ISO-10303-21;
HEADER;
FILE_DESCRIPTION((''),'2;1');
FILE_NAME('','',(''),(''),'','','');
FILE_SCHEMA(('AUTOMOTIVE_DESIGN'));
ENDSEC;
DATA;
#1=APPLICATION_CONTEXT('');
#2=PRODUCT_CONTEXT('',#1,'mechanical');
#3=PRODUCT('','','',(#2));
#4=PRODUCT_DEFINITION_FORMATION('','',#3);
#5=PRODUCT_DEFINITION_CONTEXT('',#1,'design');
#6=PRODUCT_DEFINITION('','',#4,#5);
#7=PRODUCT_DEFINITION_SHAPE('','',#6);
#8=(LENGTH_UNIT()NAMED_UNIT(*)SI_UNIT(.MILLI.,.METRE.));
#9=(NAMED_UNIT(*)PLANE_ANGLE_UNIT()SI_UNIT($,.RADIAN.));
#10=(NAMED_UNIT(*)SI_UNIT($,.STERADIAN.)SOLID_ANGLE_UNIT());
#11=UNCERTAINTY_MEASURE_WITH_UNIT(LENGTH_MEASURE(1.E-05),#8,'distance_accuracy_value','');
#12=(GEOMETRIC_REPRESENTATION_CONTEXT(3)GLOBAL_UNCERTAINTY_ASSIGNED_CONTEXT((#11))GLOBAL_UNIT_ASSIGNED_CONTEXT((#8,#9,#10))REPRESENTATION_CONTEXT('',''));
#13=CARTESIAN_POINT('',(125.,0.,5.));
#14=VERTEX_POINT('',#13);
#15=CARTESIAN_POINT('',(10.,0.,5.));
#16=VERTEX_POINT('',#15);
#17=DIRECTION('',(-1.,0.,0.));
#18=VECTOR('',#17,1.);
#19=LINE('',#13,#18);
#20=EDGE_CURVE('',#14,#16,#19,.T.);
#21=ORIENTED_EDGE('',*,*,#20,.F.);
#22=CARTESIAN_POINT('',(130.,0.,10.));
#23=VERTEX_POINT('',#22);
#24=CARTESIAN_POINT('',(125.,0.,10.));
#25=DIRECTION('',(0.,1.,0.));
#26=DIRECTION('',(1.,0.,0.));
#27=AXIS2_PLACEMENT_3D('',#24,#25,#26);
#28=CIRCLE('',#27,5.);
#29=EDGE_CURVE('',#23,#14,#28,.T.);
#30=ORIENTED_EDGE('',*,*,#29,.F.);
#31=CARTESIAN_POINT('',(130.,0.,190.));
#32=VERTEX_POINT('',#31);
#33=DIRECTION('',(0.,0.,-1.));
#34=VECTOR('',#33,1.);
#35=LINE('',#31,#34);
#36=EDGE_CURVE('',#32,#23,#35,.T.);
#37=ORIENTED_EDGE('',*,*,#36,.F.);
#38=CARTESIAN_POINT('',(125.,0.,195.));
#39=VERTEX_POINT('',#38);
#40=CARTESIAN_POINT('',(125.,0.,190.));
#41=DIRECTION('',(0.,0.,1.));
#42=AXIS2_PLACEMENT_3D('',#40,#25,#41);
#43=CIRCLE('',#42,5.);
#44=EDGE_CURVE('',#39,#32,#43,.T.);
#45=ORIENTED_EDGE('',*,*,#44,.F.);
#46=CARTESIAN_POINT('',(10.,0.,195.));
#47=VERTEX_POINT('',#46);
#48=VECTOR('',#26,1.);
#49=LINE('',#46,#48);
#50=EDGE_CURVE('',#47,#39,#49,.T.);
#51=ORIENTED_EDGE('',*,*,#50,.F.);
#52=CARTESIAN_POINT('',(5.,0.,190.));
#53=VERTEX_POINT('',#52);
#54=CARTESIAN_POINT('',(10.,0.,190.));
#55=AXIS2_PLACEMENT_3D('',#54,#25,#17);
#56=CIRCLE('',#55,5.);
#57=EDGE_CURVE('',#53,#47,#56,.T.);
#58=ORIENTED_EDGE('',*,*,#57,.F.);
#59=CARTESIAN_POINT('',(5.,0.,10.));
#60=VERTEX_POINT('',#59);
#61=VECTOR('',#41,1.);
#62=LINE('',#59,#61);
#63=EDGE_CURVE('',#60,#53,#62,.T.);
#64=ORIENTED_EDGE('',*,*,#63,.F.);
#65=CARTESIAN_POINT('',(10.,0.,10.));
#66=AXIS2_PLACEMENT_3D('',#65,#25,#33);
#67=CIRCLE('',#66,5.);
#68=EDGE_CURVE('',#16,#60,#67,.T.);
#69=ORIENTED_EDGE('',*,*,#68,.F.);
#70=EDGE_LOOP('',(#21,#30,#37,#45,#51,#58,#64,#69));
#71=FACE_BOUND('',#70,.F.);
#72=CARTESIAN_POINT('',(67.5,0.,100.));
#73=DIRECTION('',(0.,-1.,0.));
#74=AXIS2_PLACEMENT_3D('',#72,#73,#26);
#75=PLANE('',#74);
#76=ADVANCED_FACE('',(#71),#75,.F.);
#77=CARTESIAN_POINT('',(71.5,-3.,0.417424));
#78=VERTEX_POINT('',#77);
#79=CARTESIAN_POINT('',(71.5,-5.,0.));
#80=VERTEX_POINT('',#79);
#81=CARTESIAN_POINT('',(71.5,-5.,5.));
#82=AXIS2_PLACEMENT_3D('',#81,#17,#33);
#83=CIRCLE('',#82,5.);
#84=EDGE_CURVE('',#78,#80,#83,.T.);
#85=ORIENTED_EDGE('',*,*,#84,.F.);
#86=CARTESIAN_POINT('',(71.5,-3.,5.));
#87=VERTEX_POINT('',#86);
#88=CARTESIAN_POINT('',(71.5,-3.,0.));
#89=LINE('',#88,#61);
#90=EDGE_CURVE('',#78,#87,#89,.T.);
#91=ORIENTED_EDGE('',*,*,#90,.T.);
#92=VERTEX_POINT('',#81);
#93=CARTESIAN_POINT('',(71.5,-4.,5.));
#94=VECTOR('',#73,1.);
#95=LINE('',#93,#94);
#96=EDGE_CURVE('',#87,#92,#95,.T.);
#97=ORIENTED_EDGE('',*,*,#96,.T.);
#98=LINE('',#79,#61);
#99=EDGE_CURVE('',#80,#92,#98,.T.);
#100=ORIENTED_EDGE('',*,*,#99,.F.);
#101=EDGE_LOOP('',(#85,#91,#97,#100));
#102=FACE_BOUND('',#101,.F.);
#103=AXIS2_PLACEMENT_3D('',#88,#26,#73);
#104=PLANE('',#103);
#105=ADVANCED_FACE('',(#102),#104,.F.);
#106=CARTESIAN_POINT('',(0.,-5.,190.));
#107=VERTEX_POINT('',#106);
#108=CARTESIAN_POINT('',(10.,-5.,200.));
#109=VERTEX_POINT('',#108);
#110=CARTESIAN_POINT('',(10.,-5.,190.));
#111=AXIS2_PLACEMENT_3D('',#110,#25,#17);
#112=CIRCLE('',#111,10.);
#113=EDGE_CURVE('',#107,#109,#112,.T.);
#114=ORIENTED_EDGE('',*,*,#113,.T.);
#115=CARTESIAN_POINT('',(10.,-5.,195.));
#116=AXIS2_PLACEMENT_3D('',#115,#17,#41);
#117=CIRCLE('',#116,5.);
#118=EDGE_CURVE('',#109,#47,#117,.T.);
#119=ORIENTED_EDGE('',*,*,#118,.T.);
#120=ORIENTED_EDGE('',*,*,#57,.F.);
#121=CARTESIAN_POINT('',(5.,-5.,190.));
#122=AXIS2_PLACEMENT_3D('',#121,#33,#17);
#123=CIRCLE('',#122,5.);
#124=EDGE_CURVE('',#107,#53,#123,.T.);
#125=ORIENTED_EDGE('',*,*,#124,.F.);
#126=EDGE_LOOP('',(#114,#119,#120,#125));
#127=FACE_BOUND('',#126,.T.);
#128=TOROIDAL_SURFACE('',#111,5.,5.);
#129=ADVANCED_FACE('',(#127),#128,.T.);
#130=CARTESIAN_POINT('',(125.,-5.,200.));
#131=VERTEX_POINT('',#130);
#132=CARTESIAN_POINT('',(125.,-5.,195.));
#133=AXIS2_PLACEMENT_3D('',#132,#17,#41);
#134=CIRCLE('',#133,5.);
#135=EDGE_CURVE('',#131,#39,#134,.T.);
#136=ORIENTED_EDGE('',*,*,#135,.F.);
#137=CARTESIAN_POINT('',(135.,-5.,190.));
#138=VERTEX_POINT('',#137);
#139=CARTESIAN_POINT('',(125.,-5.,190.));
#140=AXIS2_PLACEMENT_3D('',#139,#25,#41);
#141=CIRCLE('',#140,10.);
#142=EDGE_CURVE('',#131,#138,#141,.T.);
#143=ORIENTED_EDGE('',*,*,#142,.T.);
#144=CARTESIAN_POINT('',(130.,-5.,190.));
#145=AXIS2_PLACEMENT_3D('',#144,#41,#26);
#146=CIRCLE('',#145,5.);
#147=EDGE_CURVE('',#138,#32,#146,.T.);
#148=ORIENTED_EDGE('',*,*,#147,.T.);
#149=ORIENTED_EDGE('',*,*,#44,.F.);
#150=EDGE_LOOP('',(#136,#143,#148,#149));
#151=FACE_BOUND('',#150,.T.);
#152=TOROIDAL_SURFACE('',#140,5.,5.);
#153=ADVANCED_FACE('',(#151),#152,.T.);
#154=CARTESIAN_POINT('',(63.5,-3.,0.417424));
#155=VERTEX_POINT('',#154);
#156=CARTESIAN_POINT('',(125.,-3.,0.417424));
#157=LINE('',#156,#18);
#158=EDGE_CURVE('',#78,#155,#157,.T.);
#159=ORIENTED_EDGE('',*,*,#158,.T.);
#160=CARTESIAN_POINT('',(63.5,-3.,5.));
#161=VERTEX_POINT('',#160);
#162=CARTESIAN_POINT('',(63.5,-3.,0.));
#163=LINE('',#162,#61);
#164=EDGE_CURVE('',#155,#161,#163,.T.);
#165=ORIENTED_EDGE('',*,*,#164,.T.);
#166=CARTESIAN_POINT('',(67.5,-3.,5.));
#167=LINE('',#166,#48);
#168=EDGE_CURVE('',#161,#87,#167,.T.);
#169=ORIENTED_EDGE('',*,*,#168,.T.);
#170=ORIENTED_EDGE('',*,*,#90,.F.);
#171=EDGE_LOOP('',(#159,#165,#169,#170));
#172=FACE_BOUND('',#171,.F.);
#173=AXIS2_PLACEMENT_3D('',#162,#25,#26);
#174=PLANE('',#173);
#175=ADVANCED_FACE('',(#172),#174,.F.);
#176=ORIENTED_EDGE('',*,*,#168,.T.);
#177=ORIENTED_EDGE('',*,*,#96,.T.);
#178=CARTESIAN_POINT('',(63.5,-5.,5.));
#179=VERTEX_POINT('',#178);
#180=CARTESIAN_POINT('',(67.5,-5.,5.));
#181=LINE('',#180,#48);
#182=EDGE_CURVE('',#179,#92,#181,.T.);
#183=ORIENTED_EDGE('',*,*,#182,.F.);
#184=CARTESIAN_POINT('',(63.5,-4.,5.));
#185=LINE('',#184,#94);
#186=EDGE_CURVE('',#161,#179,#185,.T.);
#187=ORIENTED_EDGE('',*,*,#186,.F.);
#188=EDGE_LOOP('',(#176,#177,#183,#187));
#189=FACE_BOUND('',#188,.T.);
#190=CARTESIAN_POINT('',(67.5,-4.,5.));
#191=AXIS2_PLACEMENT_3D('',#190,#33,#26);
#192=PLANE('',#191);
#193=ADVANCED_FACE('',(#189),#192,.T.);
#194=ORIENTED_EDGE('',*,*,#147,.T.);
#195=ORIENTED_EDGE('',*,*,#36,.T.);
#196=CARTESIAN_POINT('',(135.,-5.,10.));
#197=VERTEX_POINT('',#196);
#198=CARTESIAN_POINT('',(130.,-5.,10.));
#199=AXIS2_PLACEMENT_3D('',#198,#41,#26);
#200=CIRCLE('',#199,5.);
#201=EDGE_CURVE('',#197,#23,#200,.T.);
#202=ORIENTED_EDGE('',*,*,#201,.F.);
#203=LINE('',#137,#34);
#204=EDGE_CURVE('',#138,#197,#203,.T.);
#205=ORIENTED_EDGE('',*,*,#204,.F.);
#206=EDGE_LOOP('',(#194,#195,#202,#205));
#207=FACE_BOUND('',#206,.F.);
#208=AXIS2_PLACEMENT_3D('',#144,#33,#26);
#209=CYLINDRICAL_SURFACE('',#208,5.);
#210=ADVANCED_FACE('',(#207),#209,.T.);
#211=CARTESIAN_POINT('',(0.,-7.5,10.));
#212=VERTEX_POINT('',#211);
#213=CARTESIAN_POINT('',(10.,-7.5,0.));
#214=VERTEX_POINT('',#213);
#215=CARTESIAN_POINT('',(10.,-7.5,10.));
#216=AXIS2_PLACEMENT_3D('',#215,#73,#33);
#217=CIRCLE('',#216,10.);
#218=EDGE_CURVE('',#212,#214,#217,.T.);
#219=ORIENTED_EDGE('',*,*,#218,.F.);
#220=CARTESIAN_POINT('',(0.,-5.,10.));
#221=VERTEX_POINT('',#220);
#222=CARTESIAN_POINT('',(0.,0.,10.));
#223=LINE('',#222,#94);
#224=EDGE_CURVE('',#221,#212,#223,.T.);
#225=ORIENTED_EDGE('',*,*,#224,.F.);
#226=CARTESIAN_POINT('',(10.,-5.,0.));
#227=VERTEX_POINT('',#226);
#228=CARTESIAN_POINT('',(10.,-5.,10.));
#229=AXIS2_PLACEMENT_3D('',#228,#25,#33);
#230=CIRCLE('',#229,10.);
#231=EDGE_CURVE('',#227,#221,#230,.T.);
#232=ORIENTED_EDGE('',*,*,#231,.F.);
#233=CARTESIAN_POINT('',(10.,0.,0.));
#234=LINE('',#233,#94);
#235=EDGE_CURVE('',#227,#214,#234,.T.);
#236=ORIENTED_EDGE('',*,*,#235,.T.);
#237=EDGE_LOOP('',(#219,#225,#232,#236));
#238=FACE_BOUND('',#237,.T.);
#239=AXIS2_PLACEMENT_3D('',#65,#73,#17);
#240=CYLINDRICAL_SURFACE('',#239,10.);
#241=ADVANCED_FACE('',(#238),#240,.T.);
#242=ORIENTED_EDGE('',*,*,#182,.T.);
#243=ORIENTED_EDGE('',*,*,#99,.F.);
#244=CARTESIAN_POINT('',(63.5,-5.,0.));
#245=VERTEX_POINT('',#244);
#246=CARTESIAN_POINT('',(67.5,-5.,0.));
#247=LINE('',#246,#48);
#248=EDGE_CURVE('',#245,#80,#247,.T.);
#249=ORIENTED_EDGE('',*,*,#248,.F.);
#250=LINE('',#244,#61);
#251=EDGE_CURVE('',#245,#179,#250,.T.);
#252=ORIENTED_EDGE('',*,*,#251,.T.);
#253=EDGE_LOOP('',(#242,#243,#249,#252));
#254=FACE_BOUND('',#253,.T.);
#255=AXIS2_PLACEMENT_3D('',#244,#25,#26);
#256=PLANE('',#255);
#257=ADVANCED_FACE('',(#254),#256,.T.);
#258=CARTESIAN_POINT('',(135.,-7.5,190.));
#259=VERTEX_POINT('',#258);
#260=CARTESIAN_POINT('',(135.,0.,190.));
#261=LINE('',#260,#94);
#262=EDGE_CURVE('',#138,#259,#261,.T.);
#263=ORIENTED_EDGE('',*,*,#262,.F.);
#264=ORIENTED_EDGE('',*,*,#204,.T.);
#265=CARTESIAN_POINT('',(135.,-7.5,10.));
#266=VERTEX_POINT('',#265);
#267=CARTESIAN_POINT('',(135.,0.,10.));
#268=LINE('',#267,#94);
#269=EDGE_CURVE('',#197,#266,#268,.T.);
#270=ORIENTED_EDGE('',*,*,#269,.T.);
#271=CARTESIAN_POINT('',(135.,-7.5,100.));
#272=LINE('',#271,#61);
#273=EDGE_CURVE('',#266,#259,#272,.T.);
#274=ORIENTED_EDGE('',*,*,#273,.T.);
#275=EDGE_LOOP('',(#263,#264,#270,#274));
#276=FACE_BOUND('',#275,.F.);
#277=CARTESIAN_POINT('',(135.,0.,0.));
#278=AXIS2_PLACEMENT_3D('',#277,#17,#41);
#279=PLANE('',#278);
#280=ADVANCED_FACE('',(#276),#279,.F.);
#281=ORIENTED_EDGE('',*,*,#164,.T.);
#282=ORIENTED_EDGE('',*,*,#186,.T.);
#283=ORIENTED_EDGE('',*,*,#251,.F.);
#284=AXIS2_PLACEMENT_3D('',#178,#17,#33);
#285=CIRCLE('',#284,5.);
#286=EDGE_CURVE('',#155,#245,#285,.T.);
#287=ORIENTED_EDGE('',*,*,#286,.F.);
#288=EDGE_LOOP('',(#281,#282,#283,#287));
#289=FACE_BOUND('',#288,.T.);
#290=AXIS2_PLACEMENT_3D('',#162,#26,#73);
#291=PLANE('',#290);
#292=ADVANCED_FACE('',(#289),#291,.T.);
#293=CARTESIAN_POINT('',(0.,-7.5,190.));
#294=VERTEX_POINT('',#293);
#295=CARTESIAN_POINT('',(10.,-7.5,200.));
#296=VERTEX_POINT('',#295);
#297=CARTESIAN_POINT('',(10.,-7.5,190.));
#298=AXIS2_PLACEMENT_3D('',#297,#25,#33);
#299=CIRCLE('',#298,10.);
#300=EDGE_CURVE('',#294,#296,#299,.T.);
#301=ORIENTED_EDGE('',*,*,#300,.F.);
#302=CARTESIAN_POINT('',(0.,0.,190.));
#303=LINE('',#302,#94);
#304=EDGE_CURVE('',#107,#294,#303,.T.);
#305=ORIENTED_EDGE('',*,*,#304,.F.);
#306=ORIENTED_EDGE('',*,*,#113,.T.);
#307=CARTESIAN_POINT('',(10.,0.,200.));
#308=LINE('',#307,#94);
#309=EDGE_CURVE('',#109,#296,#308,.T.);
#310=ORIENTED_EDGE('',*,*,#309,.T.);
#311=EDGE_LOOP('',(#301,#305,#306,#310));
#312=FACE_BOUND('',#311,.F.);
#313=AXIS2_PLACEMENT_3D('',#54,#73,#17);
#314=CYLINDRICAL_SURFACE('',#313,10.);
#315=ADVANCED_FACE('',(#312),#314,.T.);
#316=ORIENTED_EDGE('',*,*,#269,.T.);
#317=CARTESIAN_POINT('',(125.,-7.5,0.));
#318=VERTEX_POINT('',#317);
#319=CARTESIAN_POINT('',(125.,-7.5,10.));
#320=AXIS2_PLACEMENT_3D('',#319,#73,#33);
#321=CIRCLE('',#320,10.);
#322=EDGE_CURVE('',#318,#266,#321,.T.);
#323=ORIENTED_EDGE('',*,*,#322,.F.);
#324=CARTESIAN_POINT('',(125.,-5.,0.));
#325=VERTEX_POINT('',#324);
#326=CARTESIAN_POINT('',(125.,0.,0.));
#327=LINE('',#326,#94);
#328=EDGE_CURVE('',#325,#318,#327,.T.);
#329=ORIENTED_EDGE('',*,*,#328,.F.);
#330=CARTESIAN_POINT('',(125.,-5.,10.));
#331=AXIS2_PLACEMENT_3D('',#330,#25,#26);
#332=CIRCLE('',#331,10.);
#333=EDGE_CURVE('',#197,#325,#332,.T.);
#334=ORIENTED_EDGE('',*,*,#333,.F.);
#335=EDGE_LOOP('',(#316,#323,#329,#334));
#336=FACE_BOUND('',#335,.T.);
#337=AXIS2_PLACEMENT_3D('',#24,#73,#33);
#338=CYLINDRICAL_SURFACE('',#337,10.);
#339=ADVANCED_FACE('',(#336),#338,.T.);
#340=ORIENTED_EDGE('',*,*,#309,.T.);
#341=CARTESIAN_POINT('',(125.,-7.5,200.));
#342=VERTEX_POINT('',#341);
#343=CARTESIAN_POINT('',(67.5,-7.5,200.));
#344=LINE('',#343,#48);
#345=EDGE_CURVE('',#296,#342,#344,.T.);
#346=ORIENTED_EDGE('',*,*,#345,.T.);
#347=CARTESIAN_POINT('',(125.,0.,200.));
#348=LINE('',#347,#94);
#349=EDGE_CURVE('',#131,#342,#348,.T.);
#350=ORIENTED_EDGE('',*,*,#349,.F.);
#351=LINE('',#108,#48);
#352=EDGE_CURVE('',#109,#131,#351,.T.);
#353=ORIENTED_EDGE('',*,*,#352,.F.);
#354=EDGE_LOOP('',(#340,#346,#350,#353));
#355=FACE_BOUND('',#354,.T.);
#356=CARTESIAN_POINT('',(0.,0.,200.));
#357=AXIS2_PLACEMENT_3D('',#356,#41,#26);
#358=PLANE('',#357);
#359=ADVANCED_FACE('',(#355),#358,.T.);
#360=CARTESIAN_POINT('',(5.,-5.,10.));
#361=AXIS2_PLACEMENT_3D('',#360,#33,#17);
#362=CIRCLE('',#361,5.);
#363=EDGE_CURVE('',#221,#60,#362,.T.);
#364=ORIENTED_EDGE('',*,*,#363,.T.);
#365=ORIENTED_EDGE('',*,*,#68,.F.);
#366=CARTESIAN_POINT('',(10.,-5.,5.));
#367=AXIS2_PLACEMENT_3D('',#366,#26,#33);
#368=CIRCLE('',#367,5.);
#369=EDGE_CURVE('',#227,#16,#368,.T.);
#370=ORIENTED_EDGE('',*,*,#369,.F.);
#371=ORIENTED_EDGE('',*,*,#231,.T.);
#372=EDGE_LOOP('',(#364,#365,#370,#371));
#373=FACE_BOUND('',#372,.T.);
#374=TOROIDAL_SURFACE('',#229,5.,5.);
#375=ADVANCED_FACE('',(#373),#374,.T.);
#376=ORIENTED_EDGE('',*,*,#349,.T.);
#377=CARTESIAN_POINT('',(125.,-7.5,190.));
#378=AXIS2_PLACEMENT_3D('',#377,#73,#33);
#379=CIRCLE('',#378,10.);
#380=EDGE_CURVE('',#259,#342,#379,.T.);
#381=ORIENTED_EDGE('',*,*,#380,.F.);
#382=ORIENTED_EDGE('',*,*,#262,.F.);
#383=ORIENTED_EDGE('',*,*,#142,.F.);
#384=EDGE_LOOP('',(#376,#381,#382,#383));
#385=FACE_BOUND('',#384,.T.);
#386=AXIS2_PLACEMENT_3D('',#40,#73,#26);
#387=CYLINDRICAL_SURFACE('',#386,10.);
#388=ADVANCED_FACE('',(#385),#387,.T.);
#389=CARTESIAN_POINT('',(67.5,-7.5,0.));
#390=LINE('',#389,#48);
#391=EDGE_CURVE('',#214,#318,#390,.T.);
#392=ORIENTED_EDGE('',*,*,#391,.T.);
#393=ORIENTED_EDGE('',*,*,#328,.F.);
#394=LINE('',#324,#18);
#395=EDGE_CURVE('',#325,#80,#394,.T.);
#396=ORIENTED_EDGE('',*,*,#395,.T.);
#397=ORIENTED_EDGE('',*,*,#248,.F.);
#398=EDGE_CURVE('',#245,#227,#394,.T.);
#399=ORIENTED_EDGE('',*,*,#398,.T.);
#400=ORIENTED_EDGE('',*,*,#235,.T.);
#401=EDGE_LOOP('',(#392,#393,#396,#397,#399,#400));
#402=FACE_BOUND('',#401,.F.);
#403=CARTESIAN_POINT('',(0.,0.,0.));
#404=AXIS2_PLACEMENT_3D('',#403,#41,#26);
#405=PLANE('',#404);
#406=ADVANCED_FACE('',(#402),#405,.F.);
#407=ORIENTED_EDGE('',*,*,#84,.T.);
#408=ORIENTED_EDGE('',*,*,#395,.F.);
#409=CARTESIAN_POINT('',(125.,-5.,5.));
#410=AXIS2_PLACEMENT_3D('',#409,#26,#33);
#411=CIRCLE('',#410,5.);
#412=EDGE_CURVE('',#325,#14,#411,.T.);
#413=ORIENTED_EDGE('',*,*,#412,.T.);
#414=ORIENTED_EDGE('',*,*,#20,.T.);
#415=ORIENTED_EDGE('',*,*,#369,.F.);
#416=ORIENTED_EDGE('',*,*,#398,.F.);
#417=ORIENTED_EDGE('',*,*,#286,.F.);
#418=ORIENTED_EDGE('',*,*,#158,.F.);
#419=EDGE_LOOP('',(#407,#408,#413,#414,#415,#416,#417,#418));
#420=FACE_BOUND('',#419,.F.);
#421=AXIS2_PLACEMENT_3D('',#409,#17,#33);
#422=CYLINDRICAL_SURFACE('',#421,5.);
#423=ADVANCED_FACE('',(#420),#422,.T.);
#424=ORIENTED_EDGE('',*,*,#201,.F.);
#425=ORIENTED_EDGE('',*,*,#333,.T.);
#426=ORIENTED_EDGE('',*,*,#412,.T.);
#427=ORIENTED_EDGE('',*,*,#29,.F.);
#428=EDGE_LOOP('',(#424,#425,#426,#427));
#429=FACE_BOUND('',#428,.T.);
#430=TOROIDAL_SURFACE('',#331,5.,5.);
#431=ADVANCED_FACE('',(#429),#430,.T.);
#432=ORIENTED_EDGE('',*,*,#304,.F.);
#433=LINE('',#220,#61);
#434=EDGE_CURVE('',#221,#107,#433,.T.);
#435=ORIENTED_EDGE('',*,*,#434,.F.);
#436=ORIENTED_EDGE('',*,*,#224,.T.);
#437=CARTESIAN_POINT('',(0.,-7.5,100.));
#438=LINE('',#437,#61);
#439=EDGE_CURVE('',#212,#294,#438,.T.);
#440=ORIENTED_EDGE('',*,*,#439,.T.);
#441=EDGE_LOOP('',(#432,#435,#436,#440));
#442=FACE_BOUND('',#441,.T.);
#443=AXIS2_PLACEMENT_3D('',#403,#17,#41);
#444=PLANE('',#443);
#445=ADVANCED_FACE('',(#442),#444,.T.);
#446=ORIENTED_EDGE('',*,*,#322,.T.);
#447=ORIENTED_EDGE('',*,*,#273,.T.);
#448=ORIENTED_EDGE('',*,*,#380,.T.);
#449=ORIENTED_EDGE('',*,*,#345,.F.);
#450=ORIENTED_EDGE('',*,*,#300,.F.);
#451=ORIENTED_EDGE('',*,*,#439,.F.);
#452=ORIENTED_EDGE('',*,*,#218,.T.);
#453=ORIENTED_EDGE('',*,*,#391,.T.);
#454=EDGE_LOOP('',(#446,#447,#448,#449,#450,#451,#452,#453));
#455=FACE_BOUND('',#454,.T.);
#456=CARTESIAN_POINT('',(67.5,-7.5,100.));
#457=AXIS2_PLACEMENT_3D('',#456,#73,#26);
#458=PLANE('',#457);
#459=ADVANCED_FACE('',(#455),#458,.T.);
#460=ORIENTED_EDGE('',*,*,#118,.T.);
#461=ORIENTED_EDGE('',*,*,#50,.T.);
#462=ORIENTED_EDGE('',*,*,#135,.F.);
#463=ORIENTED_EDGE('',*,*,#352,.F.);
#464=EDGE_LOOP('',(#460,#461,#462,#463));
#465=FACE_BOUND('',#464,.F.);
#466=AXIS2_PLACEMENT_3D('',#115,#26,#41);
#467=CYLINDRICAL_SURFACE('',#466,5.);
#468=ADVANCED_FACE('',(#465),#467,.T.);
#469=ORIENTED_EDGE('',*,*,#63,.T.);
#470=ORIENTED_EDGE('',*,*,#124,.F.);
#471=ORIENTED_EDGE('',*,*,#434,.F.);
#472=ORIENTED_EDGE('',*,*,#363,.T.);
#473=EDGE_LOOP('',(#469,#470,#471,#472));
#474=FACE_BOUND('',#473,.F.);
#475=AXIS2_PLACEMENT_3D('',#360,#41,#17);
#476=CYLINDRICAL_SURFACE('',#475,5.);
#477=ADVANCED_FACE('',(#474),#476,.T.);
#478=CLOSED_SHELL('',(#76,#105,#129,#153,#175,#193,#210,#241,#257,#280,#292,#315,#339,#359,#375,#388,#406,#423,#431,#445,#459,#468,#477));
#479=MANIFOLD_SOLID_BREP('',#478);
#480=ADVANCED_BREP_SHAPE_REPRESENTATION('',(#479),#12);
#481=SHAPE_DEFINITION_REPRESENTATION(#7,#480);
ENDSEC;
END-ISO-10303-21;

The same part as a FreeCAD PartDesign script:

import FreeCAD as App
import Part
import Sketcher
from FreeCAD import Vector


def edges_at(feature, points):
    """Names of the edges that pass closest to the given points."""
    edges = feature.Shape.Edges
    near = lambda p: min(range(len(edges)), key=lambda i: edges[i].distToShape(Part.Vertex(*p))[0])
    return sorted({f"Edge{near(p) + 1}" for p in points})


def add_polygon(sketch, points):
    """Adds a closed chain of lines whose ends are joined by coincident constraints."""
    first, n = sketch.GeometryCount, len(points)
    for a, b in zip(points, points[1:] + points[:1]):
        sketch.addGeometry(Part.LineSegment(App.Vector(*a, 0), App.Vector(*b, 0)), False)
    for i in range(n):
        sketch.addConstraint(Sketcher.Constraint("Coincident", first + i, 2, first + (i + 1) % n, 1))

doc = App.newDocument("Part")
body = doc.addObject("PartDesign::Body", "Body")

# Sketch on XZ plane
sketch1 = doc.addObject("Sketcher::SketchObject", "Sketch")
body.addObject(sketch1)
sketch1.AttachmentSupport = (doc.XZ_Plane, [""])
sketch1.MapMode = "FlatFace"
add_polygon(sketch1, [(0, 200), (0, 0), (135, 0), (135, 200)])  # lines 0-3
sketch1.addConstraint([
    Sketcher.Constraint("Vertical", 0),
    Sketcher.Constraint("Horizontal", 1),
    Sketcher.Constraint("Vertical", 2),
    Sketcher.Constraint("Horizontal", 3),
    Sketcher.Constraint("Coincident", 0, 2, -1, 1),
    Sketcher.Constraint("DistanceX", 1, 1, 1, 2, 135.0),
    Sketcher.Constraint("DistanceY", 0, 2, 0, 1, 200.0),
])
pad1 = doc.addObject("PartDesign::Pad", "Pad")
body.addObject(pad1)
pad1.Profile = sketch1
pad1.Length = 7.5
doc.recompute()

fillet = doc.addObject("PartDesign::Fillet", "Fillet")
body.addObject(fillet)
fillet.Base = (pad1, edges_at(pad1, [
    (0, -3.75, 200),
    (135, -3.75, 200),
    (0, -3.75, 0),
    (135, -3.75, 0),
]))
fillet.Radius = 10
doc.recompute()

fillet2 = doc.addObject("PartDesign::Fillet", "Fillet001")
body.addObject(fillet2)
fillet2.Base = (fillet, edges_at(fillet, [(0, 0, 100), (67.5, 0, 200), (2.929, 0, 197.071)]))
fillet2.Radius = 5

# Sketch on XY plane
sketch2 = doc.addObject("Sketcher::SketchObject", "Sketch001")
body.addObject(sketch2)
sketch2.AttachmentSupport = (doc.XY_Plane, [""])
sketch2.MapMode = "FlatFace"
add_polygon(sketch2, [(63.5, -5), (63.5, -3), (71.5, -3), (71.5, -5)])  # lines 0-3
sketch2.addConstraint([
    Sketcher.Constraint("Vertical", 0),
    Sketcher.Constraint("Horizontal", 1),
    Sketcher.Constraint("Vertical", 2),
    Sketcher.Constraint("Horizontal", 3),
    Sketcher.Constraint("DistanceX", 1, 1, 1, 2, 8.0),
    Sketcher.Constraint("DistanceY", 0, 1, 0, 2, 2.0),
    Sketcher.Constraint("DistanceY", 0, 2, -1, 1, 3.0),
    Sketcher.Constraint("DistanceX", -1, 1, 0, 2, 63.5),
])
pocket1 = doc.addObject("PartDesign::Pocket", "Pocket")
body.addObject(pocket1)
pocket1.Profile = sketch2
pocket1.Length = 5
pocket1.Reversed = True

doc.recompute()
